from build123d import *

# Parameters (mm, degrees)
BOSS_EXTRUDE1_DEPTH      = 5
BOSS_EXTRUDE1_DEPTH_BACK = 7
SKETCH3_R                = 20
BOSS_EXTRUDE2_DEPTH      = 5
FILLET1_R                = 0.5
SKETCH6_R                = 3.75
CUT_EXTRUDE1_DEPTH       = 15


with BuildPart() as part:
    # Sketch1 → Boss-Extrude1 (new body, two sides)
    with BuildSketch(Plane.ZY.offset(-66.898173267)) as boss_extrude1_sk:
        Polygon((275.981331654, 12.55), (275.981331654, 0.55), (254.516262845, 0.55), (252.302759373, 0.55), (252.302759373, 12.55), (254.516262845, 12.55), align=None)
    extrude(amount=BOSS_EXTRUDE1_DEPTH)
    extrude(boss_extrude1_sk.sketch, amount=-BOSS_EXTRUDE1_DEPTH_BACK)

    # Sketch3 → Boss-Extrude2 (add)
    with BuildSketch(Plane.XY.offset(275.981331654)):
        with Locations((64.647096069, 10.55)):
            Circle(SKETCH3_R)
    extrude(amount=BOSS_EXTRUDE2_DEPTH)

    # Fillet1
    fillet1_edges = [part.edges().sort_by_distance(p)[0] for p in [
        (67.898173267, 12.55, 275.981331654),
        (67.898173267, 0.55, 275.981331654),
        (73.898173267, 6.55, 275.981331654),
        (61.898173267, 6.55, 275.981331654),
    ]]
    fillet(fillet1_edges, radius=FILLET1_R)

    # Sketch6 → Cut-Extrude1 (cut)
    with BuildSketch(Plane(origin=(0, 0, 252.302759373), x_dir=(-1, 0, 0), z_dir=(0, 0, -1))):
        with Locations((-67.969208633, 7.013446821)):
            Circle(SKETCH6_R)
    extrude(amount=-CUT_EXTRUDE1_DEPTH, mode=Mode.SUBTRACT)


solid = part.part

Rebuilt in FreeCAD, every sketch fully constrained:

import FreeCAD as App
import Part
import Sketcher

V = App.Vector
Q = App.Units.Quantity


def edges_at(feature, points):
    """Names of the edges that pass closest to the given points."""
    edges = feature.Shape.Edges
    near = lambda p: min(range(len(edges)), key=lambda i: edges[i].distToShape(Part.Vertex(*p))[0])
    return sorted({f"Edge{near(p) + 1}" for p in points})

doc = App.newDocument("Part")
body = doc.addObject("PartDesign::Body", "Body")

# Sketch on YZ plane
sketch1 = doc.addObject("Sketcher::SketchObject", "Sketch")
body.addObject(sketch1)
sketch1.AttachmentSupport = (doc.YZ_Plane, [""])
sketch1.MapMode = "FlatFace"
sketch1.AttachmentOffset = App.Placement(V(0, 0, 66.898173), App.Rotation())
sketch1.addGeometry(Part.LineSegment(V(1, 276, 0), V(13, 276, 0)), False)
sketch1.addGeometry(Part.LineSegment(V(13, 276, 0), V(13, 252, 0)), False)
sketch1.addGeometry(Part.LineSegment(V(13, 252, 0), V(1, 252, 0)), False)
sketch1.addGeometry(Part.LineSegment(V(1, 252, 0), V(1, 276, 0)), False)
sketch1.addConstraint(Sketcher.Constraint("Coincident", 0, 2, 1, 1))
sketch1.addConstraint(Sketcher.Constraint("Coincident", 1, 2, 2, 1))
sketch1.addConstraint(Sketcher.Constraint("Coincident", 2, 2, 3, 1))
sketch1.addConstraint(Sketcher.Constraint("Coincident", 3, 2, 0, 1))
sketch1.addConstraint(Sketcher.Constraint("Horizontal", 0))
sketch1.addConstraint(Sketcher.Constraint("Vertical", 1))
sketch1.addConstraint(Sketcher.Constraint("Horizontal", 2))
sketch1.addConstraint(Sketcher.Constraint("Vertical", 3))
sketch1.addConstraint(Sketcher.Constraint("DistanceX", 0, 1, 0, 2, Q("12 mm")))
sketch1.addConstraint(Sketcher.Constraint("DistanceX", -1, 1, 0, 2, Q("12.55 mm")))
sketch1.addConstraint(Sketcher.Constraint("DistanceY", 1, 2, 1, 1, Q("23.678572 mm")))
sketch1.addConstraint(Sketcher.Constraint("DistanceY", -1, 1, 0, 2, Q("275.981332 mm")))
pad1 = doc.addObject("PartDesign::Pad", "Pad")
body.addObject(pad1)
pad1.Profile = sketch1
pad1.Type = "TwoLengths"
pad1.Length = 5
pad1.Length2 = 7
pad1.Reversed = True

# Sketch on XY plane
sketch2 = doc.addObject("Sketcher::SketchObject", "Sketch001")
body.addObject(sketch2)
sketch2.AttachmentSupport = (doc.XY_Plane, [""])
sketch2.MapMode = "FlatFace"
sketch2.AttachmentOffset = App.Placement(V(0, 0, 275.981332), App.Rotation())
sketch2.addGeometry(Part.Circle(V(65, 11, 0), V(0, 0, 1), 20), False)
sketch2.addConstraint(Sketcher.Constraint("Diameter", 0, Q("40 mm")))
sketch2.addConstraint(Sketcher.Constraint("DistanceY", -1, 1, 0, 3, Q("10.55 mm")))
sketch2.addConstraint(Sketcher.Constraint("DistanceX", -1, 1, 0, 3, Q("64.647096 mm")))
pad2 = doc.addObject("PartDesign::Pad", "Pad001")
body.addObject(pad2)
pad2.Profile = sketch2
pad2.Length = 5
doc.recompute()

fillet = doc.addObject("PartDesign::Fillet", "Fillet")
body.addObject(fillet)
fillet.Base = (pad2, edges_at(pad2, [
    (67.898, 12.55, 275.981),
    (67.898, 0.55, 275.981),
    (73.898, 6.55, 275.981),
    (61.898, 6.55, 275.981),
]))
fillet.Radius = 0.5

# Sketch on XY plane
sketch3 = doc.addObject("Sketcher::SketchObject", "Sketch002")
body.addObject(sketch3)
sketch3.AttachmentSupport = (doc.XY_Plane, [""])
sketch3.MapMode = "FlatFace"
sketch3.AttachmentOffset = App.Placement(V(0, 0, 252.302759), App.Rotation())
sketch3.addGeometry(Part.Circle(V(68, 7, 0), V(0, 0, 1), 3.8), False)
sketch3.addConstraint(Sketcher.Constraint("Diameter", 0, Q("7.5 mm")))
sketch3.addConstraint(Sketcher.Constraint("DistanceX", -1, 1, 0, 3, Q("67.969209 mm")))
sketch3.addConstraint(Sketcher.Constraint("DistanceY", -1, 1, 0, 3, Q("7.013447 mm")))
pocket1 = doc.addObject("PartDesign::Pocket", "Pocket")
body.addObject(pocket1)
pocket1.Profile = sketch3
pocket1.Length = 15
pocket1.Reversed = True

doc.recompute()
